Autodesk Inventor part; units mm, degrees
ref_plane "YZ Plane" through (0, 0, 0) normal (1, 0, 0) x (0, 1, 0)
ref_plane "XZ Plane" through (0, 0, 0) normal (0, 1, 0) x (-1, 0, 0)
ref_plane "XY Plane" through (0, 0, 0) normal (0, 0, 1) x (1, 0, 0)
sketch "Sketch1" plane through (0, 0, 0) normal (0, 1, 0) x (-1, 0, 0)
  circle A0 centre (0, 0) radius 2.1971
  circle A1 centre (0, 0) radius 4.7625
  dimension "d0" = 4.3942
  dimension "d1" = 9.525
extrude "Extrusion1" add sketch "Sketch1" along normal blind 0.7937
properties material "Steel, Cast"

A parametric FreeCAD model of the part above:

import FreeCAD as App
import Part
import Sketcher
Q = App.Units.Quantity

doc = App.newDocument("Part")
body = doc.addObject("PartDesign::Body", "Body")

sketch1 = doc.addObject("Sketcher::SketchObject", "Sketch")
body.addObject(sketch1)
sketch1.AttachmentSupport = (doc.XZ_Plane, [""])
sketch1.MapMode = "FlatFace"
sketch1.addGeometry([
    Part.Circle(App.Vector(0, 0, 0), App.Vector(0, 0, 1), 4.8),
    Part.Circle(App.Vector(0, 0, 0), App.Vector(0, 0, 1), 2.2),
], False)
sketch1.addConstraint([
    Sketcher.Constraint("Coincident", 0, 3, -1, 1),
    Sketcher.Constraint("Coincident", 1, 3, -1, 1),
    Sketcher.Constraint("Diameter", 0, Q("0.375 in")),
    Sketcher.Constraint("Diameter", 1, Q("0.173 in")),
])
pad1 = doc.addObject("PartDesign::Pad", "Pad")
body.addObject(pad1)
pad1.Profile = sketch1
pad1.Length = Q("0.031248 in")
pad1.Reversed = True

doc.recompute()
